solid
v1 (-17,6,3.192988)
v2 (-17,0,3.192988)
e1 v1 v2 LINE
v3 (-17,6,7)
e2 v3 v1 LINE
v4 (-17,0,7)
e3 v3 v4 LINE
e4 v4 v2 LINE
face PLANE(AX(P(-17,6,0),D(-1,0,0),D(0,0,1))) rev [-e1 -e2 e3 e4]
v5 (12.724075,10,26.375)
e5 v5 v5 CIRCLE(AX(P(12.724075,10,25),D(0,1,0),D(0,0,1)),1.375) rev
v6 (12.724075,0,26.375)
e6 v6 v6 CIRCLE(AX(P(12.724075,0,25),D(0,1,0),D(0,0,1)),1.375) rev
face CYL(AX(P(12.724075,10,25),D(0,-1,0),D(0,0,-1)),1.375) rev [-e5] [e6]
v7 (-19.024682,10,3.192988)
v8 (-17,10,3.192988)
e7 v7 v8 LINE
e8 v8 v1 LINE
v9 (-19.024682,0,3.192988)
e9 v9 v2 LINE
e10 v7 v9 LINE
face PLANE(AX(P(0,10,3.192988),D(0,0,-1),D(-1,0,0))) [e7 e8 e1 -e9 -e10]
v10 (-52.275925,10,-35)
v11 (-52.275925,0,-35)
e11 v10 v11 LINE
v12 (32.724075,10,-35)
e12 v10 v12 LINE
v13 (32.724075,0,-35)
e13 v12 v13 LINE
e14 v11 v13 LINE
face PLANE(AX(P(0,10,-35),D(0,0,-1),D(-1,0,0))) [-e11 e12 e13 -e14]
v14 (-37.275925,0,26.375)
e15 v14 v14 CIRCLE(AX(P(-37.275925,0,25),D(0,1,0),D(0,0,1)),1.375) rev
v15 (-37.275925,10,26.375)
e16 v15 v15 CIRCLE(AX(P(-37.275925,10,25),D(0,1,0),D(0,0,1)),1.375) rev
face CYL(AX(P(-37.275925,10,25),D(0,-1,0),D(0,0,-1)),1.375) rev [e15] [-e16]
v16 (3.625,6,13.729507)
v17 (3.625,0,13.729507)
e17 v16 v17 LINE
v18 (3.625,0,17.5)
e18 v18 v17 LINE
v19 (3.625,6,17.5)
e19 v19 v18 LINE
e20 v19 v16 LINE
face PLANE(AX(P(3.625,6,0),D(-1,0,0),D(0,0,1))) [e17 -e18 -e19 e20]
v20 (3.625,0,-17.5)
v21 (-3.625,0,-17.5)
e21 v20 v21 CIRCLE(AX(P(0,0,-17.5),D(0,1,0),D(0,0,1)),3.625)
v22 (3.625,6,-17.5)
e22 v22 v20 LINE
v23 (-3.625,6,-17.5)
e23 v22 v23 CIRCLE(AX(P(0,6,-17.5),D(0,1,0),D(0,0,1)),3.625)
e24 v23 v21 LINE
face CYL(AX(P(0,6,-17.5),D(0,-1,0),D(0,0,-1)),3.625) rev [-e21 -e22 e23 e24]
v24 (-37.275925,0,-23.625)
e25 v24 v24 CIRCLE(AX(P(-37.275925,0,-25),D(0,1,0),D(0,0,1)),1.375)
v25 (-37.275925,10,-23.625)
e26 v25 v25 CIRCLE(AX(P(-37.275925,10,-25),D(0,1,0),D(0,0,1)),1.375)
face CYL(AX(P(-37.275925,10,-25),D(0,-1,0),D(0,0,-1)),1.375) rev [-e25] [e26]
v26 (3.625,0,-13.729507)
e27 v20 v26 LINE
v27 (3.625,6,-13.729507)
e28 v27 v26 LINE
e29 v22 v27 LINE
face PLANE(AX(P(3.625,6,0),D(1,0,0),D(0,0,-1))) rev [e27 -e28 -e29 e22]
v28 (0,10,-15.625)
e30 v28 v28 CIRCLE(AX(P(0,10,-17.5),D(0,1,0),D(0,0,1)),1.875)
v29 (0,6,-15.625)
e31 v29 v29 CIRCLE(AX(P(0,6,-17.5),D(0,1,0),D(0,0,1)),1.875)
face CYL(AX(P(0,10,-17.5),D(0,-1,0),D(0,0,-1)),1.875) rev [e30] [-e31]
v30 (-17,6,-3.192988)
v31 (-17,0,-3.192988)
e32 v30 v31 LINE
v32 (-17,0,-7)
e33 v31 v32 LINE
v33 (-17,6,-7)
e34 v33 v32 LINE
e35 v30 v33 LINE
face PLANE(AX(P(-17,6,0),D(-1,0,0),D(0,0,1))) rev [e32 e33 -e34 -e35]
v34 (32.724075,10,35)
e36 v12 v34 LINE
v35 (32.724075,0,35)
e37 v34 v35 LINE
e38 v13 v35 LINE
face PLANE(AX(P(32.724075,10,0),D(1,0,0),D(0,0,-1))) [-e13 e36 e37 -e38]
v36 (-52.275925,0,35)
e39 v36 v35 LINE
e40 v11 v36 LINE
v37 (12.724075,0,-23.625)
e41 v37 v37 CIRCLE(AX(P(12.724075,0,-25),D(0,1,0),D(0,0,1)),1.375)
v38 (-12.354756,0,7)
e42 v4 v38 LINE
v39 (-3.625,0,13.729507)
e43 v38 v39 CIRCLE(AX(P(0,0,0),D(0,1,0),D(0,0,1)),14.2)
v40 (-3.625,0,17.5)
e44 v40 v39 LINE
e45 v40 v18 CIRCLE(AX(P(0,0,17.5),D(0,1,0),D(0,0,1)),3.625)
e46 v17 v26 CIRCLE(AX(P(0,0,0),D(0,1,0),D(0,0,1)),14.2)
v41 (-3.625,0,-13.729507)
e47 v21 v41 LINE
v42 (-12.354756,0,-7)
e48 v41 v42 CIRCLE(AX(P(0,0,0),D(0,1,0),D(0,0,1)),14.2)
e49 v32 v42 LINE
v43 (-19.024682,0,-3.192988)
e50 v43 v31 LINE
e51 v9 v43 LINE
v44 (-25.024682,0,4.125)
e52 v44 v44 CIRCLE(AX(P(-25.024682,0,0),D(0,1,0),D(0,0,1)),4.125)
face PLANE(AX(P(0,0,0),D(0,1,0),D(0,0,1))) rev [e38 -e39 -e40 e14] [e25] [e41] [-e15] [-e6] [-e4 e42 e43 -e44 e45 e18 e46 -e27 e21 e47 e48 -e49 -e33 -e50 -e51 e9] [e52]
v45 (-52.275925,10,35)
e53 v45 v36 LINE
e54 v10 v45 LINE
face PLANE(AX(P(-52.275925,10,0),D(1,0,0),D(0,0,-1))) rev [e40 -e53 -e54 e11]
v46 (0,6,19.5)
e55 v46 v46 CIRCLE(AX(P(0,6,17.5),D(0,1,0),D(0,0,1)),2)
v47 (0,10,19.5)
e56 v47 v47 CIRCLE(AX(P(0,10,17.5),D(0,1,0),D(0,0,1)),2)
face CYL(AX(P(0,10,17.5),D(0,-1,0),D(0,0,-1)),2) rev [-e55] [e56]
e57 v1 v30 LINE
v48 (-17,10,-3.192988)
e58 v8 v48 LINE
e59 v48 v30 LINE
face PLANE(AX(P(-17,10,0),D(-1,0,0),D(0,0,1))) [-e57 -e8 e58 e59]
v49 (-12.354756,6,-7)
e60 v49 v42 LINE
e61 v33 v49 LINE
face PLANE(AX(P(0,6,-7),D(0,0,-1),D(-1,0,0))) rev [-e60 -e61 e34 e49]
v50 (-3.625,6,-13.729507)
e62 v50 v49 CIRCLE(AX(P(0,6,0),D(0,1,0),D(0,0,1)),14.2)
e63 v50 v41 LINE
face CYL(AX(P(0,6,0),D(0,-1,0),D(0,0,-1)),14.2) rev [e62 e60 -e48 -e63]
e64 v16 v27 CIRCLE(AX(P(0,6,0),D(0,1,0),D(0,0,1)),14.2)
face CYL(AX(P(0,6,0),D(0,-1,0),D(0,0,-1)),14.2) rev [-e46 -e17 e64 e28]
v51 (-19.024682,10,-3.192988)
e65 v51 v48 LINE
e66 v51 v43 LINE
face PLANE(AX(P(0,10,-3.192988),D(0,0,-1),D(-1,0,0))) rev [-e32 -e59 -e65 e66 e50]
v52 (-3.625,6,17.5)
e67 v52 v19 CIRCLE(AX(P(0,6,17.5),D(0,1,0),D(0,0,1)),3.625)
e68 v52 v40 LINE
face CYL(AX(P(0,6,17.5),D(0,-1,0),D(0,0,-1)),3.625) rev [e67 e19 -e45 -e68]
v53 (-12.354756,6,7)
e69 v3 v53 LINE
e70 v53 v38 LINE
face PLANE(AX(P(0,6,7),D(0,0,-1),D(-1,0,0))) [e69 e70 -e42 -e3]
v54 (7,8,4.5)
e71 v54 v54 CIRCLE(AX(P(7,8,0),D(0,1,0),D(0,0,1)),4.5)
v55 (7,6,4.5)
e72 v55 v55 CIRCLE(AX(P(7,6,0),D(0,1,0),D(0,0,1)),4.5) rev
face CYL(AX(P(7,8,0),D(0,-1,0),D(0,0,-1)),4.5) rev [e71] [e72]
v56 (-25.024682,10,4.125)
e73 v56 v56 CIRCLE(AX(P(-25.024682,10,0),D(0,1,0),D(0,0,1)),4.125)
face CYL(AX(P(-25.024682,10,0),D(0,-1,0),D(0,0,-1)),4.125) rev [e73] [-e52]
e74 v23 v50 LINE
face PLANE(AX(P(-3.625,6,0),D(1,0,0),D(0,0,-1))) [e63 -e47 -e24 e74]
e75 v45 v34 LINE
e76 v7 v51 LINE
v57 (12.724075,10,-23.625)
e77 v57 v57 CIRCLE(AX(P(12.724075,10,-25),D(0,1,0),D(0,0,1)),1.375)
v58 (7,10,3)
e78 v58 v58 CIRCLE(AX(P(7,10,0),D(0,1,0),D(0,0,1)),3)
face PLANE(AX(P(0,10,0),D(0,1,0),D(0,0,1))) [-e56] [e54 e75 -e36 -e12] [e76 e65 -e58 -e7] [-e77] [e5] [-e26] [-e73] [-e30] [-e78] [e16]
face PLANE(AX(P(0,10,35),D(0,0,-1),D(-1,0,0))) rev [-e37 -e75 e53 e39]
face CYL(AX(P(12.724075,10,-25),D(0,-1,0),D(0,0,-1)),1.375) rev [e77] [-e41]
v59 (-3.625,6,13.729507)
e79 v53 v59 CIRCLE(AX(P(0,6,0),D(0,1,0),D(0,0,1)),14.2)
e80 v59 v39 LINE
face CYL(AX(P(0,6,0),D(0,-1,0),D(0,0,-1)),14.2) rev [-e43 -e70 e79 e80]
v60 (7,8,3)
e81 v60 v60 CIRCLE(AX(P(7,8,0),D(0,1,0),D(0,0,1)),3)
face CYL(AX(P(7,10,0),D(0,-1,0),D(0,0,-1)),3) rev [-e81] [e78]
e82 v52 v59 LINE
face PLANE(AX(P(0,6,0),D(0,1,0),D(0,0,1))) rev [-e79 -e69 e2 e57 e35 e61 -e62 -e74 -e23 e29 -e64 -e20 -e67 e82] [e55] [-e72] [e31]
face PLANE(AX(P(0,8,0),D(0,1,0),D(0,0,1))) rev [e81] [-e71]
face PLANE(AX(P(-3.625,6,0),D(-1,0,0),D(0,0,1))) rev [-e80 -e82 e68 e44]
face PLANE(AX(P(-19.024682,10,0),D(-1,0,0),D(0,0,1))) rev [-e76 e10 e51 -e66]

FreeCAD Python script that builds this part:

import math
import FreeCAD as App
import Part
import Sketcher
Q = App.Units.Quantity

doc = App.newDocument("Part")
params = doc.addObject("Spreadsheet::Sheet", "Params")
for row, (alias, value) in enumerate([
    ("sketch1_diameter", "4 mm"),
    ("sketch1_diameter2", "6 mm"),
    ("sketch1_diameter3", "2.75 mm"),
    ("sketch1_diameter4", "8.25 mm"),
    ("sketch1_diameter5", "3.75 mm"),
    ("pad1_length", "10 mm"),
    ("sketch2_diameter", "9 mm"),
    ("sketch2_radius", "14.2 mm"),
    ("sketch2_height", "14 mm"),
    ("pocket1_length", "6 mm"),
    ("sketch3_diameter", "9 mm"),
    ("sketch3_diameter2", "6 mm"),
    ("pocket2_length", "8 mm"),
], start=1):
    params.set(f"A{row}", alias)
    params.set(f"B{row}", "=" + value)
    params.setAlias(f"B{row}", alias)

body = doc.addObject("PartDesign::Body", "Body")

sketch1 = body.newObject("Sketcher::SketchObject", "Sketch")
sketch1.AttachmentSupport = (doc.getObject("XZ_Plane"), [""])
sketch1.MapMode = "FlatFace"
sketch1.addGeometry([
    Part.LineSegment(App.Vector(-52.275925, -35, 0), App.Vector(-52.275925, 35, 0)),
    Part.LineSegment(App.Vector(-52.275925, 35, 0), App.Vector(32.724075, 35, 0)),
    Part.LineSegment(App.Vector(32.724075, 35, 0), App.Vector(32.724075, -35, 0)),
    Part.LineSegment(App.Vector(32.724075, -35, 0), App.Vector(-52.275925, -35, 0)),
    Part.Circle(App.Vector(-37.275925, 25, 0), App.Vector(0, 0, 1), 1.375),
    Part.Circle(App.Vector(0, 17.5, 0), App.Vector(0, 0, 1), 2),
    Part.Circle(App.Vector(12.724075, 25, 0), App.Vector(0, 0, 1), 1.375),
    Part.Circle(App.Vector(-25.024682, 0, 0), App.Vector(0, 0, 1), 4.125),
    Part.LineSegment(App.Vector(-17, 3.192988, 0), App.Vector(-19.024682, 3.192988, 0)),
    Part.LineSegment(App.Vector(-19.024682, 3.192988, 0), App.Vector(-19.024682, -3.192988, 0)),
    Part.LineSegment(App.Vector(-19.024682, -3.192988, 0), App.Vector(-17, -3.192988, 0)),
    Part.LineSegment(App.Vector(-17, -3.192988, 0), App.Vector(-17, 3.192988, 0)),
    Part.Circle(App.Vector(-37.275925, -25, 0), App.Vector(0, 0, 1), 1.375),
    Part.Circle(App.Vector(7, 0, 0), App.Vector(0, 0, 1), 3),
    Part.Circle(App.Vector(0, -17.5, 0), App.Vector(0, 0, 1), 1.875),
    Part.Circle(App.Vector(12.724075, -25, 0), App.Vector(0, 0, 1), 1.375),
], False)
sketch1.addConstraint([
    Sketcher.Constraint("Coincident", 0, 2, 1, 1),
    Sketcher.Constraint("Coincident", 1, 2, 2, 1),
    Sketcher.Constraint("Coincident", 2, 2, 3, 1),
    Sketcher.Constraint("Coincident", 3, 2, 0, 1),
    Sketcher.Constraint("Coincident", 8, 2, 9, 1),
    Sketcher.Constraint("Coincident", 9, 2, 10, 1),
    Sketcher.Constraint("Coincident", 10, 2, 11, 1),
    Sketcher.Constraint("Coincident", 11, 2, 8, 1),
    Sketcher.Constraint("Vertical", 0),
    Sketcher.Constraint("Horizontal", 1),
    Sketcher.Constraint("Vertical", 2),
    Sketcher.Constraint("Horizontal", 3),
    Sketcher.Constraint("Horizontal", 8),
    Sketcher.Constraint("Vertical", 9),
    Sketcher.Constraint("Horizontal", 10),
    Sketcher.Constraint("Vertical", 11),
    Sketcher.Constraint("Equal", 4, 6),
    Sketcher.Constraint("Equal", 6, 12),
    Sketcher.Constraint("Equal", 12, 15),
    Sketcher.Constraint("Symmetric", 5, 3, 14, 3, -1, 1),
    Sketcher.Constraint("Symmetric", 4, 3, 12, 3, -1),
    Sketcher.Constraint("Symmetric", 6, 3, 15, 3, -1),
    Sketcher.Constraint("PointOnObject", 5, 3, -2),
    Sketcher.Constraint("PointOnObject", 7, 3, -1),
    Sketcher.Constraint("PointOnObject", 13, 3, -1),
    Sketcher.Constraint("Horizontal", 4, 3, 6, 3),
    Sketcher.Constraint("Diameter", 5, Q("4 mm")),
    Sketcher.Constraint("Diameter", 13, Q("6 mm")),
    Sketcher.Constraint("Diameter", 4, Q("2.75 mm")),
    Sketcher.Constraint("Diameter", 7, Q("8.25 mm")),
    Sketcher.Constraint("Diameter", 14, Q("3.75 mm")),
    Sketcher.Constraint("DistanceX", 1, 1, 1, 2, Q("85 mm")),
    Sketcher.Constraint("DistanceY", 0, 1, 0, 2, Q("70 mm")),
    Sketcher.Constraint("DistanceY", -1, 1, 4, 3, Q("25 mm")),
    Sketcher.Constraint("DistanceX", -1, 1, 13, 3, Q("7 mm")),
    Sketcher.Constraint("DistanceY", -1, 1, 0, 2, Q("35 mm")),
    Sketcher.Constraint("DistanceX", 10, 2, -1, 1, Q("17 mm")),
    Sketcher.Constraint("DistanceX", 4, 3, 6, 3, Q("50 mm")),
    Sketcher.Constraint("DistanceY", 14, 3, 5, 3, Q("35 mm")),
    Sketcher.Constraint("DistanceX", 0, 2, 4, 3, Q("15 mm")),
    Sketcher.Constraint("DistanceX", 7, 3, 8, 2, Q("6 mm")),
    Sketcher.Constraint("DistanceX", 8, 2, 8, 1, Q("2.024682 mm")),
    Sketcher.Constraint("DistanceY", 9, 2, 9, 1, Q("6.385976 mm")),
    Sketcher.Constraint("DistanceX", 4, 3, -1, 1, Q("37.275925 mm")),
    Sketcher.Constraint("DistanceY", -1, 1, 8, 2, Q("3.192988 mm")),
])
sketch1.setExpression("Constraints[26]", "Params.sketch1_diameter")
sketch1.setExpression("Constraints[27]", "Params.sketch1_diameter2")
sketch1.setExpression("Constraints[28]", "Params.sketch1_diameter3")
sketch1.setExpression("Constraints[29]", "Params.sketch1_diameter4")
sketch1.setExpression("Constraints[30]", "Params.sketch1_diameter5")
pad1 = body.newObject("PartDesign::Pad", "Pad")
pad1.Profile = sketch1
pad1.setExpression("Length", "Params.pad1_length")
pad1.Reversed = True

sketch2 = body.newObject("Sketcher::SketchObject", "Sketch001")
sketch2.AttachmentSupport = (doc.getObject("XZ_Plane"), [""])
sketch2.MapMode = "FlatFace"
sketch2.addGeometry([
    Part.LineSegment(App.Vector(3.625, -13.729507, 0), App.Vector(3.625, -17.5, 0)),
    Part.ArcOfCircle(Part.Circle(App.Vector(0, -17.5, 0), App.Vector(0, 0, 1), 3.625), math.radians(180), math.radians(360)),
    Part.LineSegment(App.Vector(-3.625, -17.5, 0), App.Vector(-3.625, -13.729507, 0)),
    Part.ArcOfCircle(Part.Circle(App.Vector(0, 0, 0), App.Vector(0, 0, 1), 14.2), math.radians(-150.464828), math.radians(-104.790277)),
    Part.LineSegment(App.Vector(-12.354756, -7, 0), App.Vector(-17, -7, 0)),
    Part.LineSegment(App.Vector(-17, -7, 0), App.Vector(-17, 7, 0)),
    Part.LineSegment(App.Vector(-17, 7, 0), App.Vector(-12.354756, 7, 0)),
    Part.ArcOfCircle(Part.Circle(App.Vector(0, 0, 0), App.Vector(0, 0, 1), 14.2), math.radians(104.790277), math.radians(150.464828)),
    Part.LineSegment(App.Vector(-3.625, 13.729507, 0), App.Vector(-3.625, 17.5, 0)),
    Part.ArcOfCircle(Part.Circle(App.Vector(0, 17.5, 0), App.Vector(0, 0, 1), 3.625), math.radians(0), math.radians(180)),
    Part.LineSegment(App.Vector(3.625, 17.5, 0), App.Vector(3.625, 13.729507, 0)),
    Part.ArcOfCircle(Part.Circle(App.Vector(0, 0, 0), App.Vector(0, 0, 1), 14.2), math.radians(-75.209723), math.radians(75.209723)),
    Part.Circle(App.Vector(7, 0, 0), App.Vector(0, 0, 1), 4.5),
], False)
sketch2.addConstraint([
    Sketcher.Constraint("Tangent", 0, 2, 1, 2),
    Sketcher.Constraint("Tangent", 1, 1, 2, 1),
    Sketcher.Constraint("Coincident", 2, 2, 3, 2),
    Sketcher.Constraint("Coincident", 3, 1, 4, 1),
    Sketcher.Constraint("Coincident", 4, 2, 5, 1),
    Sketcher.Constraint("Coincident", 5, 2, 6, 1),
    Sketcher.Constraint("Coincident", 6, 2, 7, 2),
    Sketcher.Constraint("Coincident", 7, 1, 8, 1),
    Sketcher.Constraint("Tangent", 8, 2, 9, 2),
    Sketcher.Constraint("Tangent", 9, 1, 10, 1),
    Sketcher.Constraint("Coincident", 10, 2, 11, 2),
    Sketcher.Constraint("Coincident", 11, 1, 0, 1),
    Sketcher.Constraint("Vertical", 0),
    Sketcher.Constraint("Vertical", 2),
    Sketcher.Constraint("Horizontal", 4),
    Sketcher.Constraint("Vertical", 5),
    Sketcher.Constraint("Horizontal", 6),
    Sketcher.Constraint("Vertical", 8),
    Sketcher.Constraint("Vertical", 10),
    Sketcher.Constraint("Coincident", 3, 3, -1, 1),
    Sketcher.Constraint("Coincident", 7, 3, -1, 1),
    Sketcher.Constraint("Coincident", 11, 3, -1, 1),
    Sketcher.Constraint("Equal", 3, 7),
    Sketcher.Constraint("Equal", 1, 9),
    Sketcher.Constraint("Equal", 7, 11),
    Sketcher.Constraint("Symmetric", 1, 3, 9, 3, -1, 1),
    Sketcher.Constraint("PointOnObject", 1, 3, -2),
    Sketcher.Constraint("PointOnObject", 12, 3, -1),
    Sketcher.Constraint("Vertical", 3, 1, 6, 2),
    Sketcher.Constraint("Diameter", 12, Q("9 mm")),
    Sketcher.Constraint("Radius", 3, Q("14.2 mm")),
    Sketcher.Constraint("DistanceY", 5, 1, 5, 2, Q("14 mm")),
    Sketcher.Constraint("DistanceX", -1, 1, 12, 3, Q("7 mm")),
    Sketcher.Constraint("DistanceX", 4, 2, -1, 1, Q("17 mm")),
    Sketcher.Constraint("Radius", 1, Q("3.625 mm")),
    Sketcher.Constraint("DistanceY", 1, 3, 9, 3, Q("35 mm")),
])
sketch2.setExpression("Constraints[29]", "Params.sketch2_diameter")
sketch2.setExpression("Constraints[30]", "Params.sketch2_radius")
sketch2.setExpression("Constraints[31]", "Params.sketch2_height")
pocket1 = body.newObject("PartDesign::Pocket", "Pocket")
pocket1.Profile = sketch2
pocket1.setExpression("Length", "Params.pocket1_length")

sketch3 = body.newObject("Sketcher::SketchObject", "Sketch002")
sketch3.AttachmentSupport = (doc.getObject("XZ_Plane"), [""])
sketch3.MapMode = "FlatFace"
sketch3.addGeometry([
    Part.Circle(App.Vector(7, 0, 0), App.Vector(0, 0, 1), 4.5),
    Part.Circle(App.Vector(7, 0, 0), App.Vector(0, 0, 1), 3),
], False)
sketch3.addConstraint([
    Sketcher.Constraint("Coincident", 1, 3, 0, 3),
    Sketcher.Constraint("PointOnObject", 0, 3, -1),
    Sketcher.Constraint("Diameter", 0, Q("9 mm")),
    Sketcher.Constraint("Diameter", 1, Q("6 mm")),
    Sketcher.Constraint("DistanceX", -1, 1, 0, 3, Q("7 mm")),
])
sketch3.setExpression("Constraints[2]", "Params.sketch3_diameter")
sketch3.setExpression("Constraints[3]", "Params.sketch3_diameter2")
pocket2 = body.newObject("PartDesign::Pocket", "Pocket001")
pocket2.Profile = sketch3
pocket2.setExpression("Length", "Params.pocket2_length")

doc.recompute()
